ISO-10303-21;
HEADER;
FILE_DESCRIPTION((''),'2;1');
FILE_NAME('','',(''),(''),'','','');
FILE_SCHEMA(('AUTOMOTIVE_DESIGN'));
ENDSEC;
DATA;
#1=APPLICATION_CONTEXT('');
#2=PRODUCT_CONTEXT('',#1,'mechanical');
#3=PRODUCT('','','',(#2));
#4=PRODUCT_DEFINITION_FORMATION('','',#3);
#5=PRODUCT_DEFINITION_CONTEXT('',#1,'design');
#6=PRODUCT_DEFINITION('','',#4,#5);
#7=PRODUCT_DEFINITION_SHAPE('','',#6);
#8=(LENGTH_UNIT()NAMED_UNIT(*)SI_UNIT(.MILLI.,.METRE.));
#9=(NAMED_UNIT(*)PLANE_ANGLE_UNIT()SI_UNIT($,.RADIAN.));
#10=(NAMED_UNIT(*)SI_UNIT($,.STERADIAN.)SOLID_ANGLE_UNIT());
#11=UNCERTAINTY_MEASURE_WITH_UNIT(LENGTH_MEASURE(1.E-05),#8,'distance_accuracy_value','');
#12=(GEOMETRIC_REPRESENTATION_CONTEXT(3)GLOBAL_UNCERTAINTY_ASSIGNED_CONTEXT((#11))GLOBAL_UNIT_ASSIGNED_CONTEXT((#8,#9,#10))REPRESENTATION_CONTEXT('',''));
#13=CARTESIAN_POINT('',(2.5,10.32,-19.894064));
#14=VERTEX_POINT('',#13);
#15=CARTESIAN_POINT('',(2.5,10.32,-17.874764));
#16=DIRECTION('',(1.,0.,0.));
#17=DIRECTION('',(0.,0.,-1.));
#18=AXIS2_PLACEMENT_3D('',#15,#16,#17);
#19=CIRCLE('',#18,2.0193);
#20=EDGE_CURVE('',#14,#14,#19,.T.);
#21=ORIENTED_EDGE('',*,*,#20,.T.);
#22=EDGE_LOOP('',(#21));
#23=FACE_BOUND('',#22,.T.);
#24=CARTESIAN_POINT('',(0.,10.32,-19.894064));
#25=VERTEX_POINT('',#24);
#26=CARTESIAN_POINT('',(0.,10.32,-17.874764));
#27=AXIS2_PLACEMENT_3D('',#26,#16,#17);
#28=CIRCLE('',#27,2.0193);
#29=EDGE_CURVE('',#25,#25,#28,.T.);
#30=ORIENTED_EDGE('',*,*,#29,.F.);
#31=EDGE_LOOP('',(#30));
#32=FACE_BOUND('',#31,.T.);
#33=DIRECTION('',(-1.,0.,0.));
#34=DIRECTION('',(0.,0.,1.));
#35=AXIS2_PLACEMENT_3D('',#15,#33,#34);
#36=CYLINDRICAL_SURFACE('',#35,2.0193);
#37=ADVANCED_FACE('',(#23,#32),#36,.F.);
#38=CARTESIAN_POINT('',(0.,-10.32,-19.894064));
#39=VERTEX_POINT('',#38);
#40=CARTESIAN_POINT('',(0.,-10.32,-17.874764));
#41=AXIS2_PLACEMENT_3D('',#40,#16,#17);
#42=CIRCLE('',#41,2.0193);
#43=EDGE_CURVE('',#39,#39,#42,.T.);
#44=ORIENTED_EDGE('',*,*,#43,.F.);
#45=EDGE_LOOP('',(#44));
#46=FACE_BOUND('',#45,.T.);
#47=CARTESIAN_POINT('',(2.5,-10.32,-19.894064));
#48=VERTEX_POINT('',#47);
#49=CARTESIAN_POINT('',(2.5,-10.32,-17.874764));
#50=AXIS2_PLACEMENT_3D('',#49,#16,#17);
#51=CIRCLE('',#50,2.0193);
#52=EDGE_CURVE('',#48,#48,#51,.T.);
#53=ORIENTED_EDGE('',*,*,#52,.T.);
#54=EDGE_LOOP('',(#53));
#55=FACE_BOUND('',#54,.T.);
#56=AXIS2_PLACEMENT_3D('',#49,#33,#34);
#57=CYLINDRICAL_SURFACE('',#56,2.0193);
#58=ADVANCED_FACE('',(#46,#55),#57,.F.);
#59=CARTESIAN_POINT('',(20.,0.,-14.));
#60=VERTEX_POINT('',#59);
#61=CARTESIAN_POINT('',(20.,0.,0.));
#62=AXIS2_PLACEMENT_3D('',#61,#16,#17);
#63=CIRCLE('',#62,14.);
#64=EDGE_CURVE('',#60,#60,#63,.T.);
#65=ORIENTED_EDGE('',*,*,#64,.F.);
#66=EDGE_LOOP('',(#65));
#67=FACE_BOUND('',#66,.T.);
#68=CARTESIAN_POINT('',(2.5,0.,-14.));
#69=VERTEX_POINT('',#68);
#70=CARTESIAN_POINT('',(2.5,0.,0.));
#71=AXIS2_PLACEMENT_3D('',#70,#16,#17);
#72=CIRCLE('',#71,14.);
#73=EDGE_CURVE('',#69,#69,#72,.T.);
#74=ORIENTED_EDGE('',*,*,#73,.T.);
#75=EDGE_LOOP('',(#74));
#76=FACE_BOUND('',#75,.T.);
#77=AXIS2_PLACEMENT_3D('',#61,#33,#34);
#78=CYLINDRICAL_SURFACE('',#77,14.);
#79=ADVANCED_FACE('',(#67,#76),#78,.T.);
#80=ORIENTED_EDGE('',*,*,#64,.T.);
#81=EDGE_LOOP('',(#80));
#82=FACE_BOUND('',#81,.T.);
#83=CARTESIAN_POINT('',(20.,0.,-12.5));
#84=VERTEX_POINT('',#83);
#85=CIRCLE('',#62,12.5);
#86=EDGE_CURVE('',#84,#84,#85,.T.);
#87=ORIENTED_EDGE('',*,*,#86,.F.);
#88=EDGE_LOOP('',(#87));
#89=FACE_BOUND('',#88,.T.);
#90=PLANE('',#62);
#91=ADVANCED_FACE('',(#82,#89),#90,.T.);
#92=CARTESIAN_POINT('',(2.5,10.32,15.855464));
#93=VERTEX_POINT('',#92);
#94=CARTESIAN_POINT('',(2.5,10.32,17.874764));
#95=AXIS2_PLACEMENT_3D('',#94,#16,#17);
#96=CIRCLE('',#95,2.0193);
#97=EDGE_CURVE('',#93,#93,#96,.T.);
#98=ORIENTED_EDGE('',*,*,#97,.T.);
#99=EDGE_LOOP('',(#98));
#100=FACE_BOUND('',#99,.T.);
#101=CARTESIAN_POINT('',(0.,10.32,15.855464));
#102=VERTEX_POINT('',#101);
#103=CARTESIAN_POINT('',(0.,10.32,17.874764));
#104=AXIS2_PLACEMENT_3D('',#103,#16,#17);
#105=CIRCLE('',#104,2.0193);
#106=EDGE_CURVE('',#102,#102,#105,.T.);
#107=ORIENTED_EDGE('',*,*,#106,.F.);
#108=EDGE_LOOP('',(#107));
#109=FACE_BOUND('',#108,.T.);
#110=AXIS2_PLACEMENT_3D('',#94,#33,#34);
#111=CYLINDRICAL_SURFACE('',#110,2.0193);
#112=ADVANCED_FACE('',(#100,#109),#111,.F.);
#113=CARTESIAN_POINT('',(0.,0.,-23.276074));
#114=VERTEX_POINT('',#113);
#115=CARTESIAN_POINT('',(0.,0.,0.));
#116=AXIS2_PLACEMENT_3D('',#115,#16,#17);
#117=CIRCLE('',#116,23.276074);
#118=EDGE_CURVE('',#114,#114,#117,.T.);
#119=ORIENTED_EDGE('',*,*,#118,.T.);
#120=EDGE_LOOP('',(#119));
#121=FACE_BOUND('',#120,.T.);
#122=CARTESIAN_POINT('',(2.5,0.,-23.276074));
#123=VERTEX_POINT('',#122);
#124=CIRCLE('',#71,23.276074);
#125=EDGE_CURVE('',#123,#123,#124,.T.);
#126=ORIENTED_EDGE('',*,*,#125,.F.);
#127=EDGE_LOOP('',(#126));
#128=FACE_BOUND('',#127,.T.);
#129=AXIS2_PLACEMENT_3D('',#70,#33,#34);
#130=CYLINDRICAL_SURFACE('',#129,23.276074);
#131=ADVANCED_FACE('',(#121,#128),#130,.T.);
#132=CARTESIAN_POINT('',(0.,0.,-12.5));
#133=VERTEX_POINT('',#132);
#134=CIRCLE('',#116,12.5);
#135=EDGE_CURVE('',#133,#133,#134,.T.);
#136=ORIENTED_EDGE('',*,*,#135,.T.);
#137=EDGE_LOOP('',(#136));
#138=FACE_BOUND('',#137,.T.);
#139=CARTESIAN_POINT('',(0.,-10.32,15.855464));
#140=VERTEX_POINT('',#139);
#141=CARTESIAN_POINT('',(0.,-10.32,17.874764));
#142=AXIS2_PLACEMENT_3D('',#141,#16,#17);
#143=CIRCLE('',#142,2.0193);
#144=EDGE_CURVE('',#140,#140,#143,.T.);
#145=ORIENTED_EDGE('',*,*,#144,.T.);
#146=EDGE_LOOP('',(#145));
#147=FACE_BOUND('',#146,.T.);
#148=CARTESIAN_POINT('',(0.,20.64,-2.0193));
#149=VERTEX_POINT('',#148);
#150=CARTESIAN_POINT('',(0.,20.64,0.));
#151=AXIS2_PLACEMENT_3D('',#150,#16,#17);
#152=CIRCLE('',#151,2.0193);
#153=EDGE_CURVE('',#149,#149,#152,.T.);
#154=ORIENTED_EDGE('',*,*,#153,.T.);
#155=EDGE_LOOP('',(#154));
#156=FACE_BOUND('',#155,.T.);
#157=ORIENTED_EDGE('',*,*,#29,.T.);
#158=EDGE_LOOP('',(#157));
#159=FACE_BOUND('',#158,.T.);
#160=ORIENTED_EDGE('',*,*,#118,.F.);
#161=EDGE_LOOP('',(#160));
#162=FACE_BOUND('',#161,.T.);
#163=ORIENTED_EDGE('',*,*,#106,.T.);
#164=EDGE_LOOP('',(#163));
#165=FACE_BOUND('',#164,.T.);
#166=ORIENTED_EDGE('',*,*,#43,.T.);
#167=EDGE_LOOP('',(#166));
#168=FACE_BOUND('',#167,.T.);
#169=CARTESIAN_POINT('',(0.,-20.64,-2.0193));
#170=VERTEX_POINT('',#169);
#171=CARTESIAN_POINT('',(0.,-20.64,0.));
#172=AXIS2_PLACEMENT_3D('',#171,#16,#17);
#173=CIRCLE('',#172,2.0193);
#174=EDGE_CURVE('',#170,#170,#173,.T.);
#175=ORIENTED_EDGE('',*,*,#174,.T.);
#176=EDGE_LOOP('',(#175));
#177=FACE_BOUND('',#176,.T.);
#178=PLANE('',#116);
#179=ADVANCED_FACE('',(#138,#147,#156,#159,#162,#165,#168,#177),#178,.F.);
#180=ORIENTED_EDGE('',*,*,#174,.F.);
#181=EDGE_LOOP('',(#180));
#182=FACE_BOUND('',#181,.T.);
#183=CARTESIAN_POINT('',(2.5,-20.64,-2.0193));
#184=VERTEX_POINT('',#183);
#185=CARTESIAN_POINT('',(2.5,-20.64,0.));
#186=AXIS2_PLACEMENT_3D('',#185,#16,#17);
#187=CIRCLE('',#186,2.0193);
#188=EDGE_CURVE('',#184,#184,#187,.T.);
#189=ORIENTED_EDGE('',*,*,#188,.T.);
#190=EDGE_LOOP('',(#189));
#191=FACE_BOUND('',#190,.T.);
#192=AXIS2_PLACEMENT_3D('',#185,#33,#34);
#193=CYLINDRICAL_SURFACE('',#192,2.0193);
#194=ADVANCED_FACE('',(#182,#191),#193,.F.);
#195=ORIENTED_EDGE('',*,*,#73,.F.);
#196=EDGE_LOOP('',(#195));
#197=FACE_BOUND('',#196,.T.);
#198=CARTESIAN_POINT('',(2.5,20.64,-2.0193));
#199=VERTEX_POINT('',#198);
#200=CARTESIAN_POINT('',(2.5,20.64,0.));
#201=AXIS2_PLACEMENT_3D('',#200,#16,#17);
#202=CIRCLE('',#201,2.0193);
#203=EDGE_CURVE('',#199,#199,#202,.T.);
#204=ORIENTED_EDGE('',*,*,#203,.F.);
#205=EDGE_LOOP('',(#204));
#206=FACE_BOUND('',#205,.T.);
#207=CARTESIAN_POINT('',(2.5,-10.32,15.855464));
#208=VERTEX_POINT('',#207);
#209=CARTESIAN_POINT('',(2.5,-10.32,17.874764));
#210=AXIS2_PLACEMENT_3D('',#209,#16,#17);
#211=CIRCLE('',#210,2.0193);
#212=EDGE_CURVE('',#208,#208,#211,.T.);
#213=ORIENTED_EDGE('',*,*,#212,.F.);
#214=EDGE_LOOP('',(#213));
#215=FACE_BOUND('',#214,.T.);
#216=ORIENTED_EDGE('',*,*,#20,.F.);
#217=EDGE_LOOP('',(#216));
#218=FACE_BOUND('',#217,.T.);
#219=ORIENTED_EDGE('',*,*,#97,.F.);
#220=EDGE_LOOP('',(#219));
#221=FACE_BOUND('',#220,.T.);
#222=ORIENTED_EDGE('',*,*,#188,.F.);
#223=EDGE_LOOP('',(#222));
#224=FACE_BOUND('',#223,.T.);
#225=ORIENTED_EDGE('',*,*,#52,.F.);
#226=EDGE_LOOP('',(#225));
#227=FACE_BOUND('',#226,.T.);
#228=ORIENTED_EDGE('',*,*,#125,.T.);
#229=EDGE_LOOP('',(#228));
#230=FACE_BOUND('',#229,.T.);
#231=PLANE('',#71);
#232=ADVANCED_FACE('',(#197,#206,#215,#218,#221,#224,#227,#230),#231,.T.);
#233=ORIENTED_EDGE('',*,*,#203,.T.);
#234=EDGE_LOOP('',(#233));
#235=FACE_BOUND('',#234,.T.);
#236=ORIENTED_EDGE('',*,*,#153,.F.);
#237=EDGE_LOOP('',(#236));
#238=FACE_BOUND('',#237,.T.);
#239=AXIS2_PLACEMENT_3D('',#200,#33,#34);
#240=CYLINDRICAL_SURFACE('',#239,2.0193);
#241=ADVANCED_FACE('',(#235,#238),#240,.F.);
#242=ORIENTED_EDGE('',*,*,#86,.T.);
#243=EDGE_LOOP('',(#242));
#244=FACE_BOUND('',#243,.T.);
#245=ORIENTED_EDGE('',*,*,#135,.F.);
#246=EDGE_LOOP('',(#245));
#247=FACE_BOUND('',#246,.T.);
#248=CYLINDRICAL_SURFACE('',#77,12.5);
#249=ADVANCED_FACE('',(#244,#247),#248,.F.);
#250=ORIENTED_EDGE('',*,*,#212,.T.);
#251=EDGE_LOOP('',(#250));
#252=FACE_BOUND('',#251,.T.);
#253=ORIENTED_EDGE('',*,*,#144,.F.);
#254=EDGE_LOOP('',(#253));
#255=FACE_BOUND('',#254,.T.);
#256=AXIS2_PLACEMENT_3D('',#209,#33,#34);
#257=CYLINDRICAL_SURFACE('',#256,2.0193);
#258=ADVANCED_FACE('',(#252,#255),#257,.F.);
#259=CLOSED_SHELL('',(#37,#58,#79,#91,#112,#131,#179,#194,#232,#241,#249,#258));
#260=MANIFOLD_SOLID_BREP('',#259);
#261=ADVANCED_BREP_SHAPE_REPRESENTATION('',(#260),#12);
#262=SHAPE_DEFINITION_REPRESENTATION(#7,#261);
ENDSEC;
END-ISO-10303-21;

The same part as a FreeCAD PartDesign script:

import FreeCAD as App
import Part
import Sketcher

V = App.Vector

doc = App.newDocument("Part")
body = doc.addObject("PartDesign::Body", "Body")

# Sketch on YZ plane
sketch1 = body.newObject("Sketcher::SketchObject", "Sketch")
sketch1.AttachmentSupport = (doc.getObject("YZ_Plane"), [""])
sketch1.MapMode = "FlatFace"
sketch1.addGeometry([
    Part.Circle(V(0, 0, 0), V(0, 0, 1), 23.3),  # 0
    Part.Circle(V(-20.6, 0, 0), V(0, 0, 1), 2),  # 1
    Part.Circle(V(-10.3, 17.9, 0), V(0, 0, 1), 2),  # 2
    Part.Circle(V(-10.3, -17.9, 0), V(0, 0, 1), 2),  # 3
    Part.Circle(V(10.3, 17.9, 0), V(0, 0, 1), 2),  # 4
    Part.Circle(V(20.6, 0, 0), V(0, 0, 1), 2),  # 5
    Part.Circle(V(10.3, -17.9, 0), V(0, 0, 1), 2),  # 6
], False)
sketch1.addConstraint([
    Sketcher.Constraint("Coincident", 0, 3, -1, 1),
    Sketcher.Constraint("Equal", 1, 2),
    Sketcher.Constraint("Equal", 2, 3),
    Sketcher.Constraint("Equal", 3, 4),
    Sketcher.Constraint("Equal", 4, 5),
    Sketcher.Constraint("Equal", 5, 6),
    Sketcher.Constraint("Symmetric", 3, 3, 4, 3, -1, 1),
    Sketcher.Constraint("Symmetric", 1, 3, 5, 3, -1, 1),
    Sketcher.Constraint("Symmetric", 2, 3, 6, 3, -1, 1),
    Sketcher.Constraint("Symmetric", 2, 3, 4, 3, -2),
    Sketcher.Constraint("PointOnObject", 1, 3, -1),
    Sketcher.Constraint("Diameter", 1, 4.0386),
    Sketcher.Constraint("Diameter", 0, 46.552149),
    Sketcher.Constraint("DistanceX", 1, 3, -1, 1, 20.64),
    Sketcher.Constraint("DistanceX", 2, 3, -1, 1, 10.32),
    Sketcher.Constraint("DistanceY", 3, 3, 2, 3, 35.749529),
])
pad1 = body.newObject("PartDesign::Pad", "Pad")
pad1.Profile = sketch1
pad1.Length = 2.5

# Sketch on YZ plane
sketch2 = body.newObject("Sketcher::SketchObject", "Sketch001")
sketch2.AttachmentSupport = (doc.getObject("YZ_Plane"), [""])
sketch2.MapMode = "FlatFace"
sketch2.addGeometry(Part.Circle(V(0, 0, 0), V(0, 0, 1), 14), False)
sketch2.addConstraint([
    Sketcher.Constraint("Coincident", 0, 3, -1, 1),
    Sketcher.Constraint("Diameter", 0, 28.0),
])
pocket1 = body.newObject("PartDesign::Pocket", "Pocket")
pocket1.Profile = sketch2
pocket1.Length = 30.8125
pocket1.Reversed = True

# Sketch on YZ plane
sketch3 = body.newObject("Sketcher::SketchObject", "Sketch002")
sketch3.AttachmentSupport = (doc.getObject("YZ_Plane"), [""])
sketch3.MapMode = "FlatFace"
sketch3.addGeometry([
    Part.Circle(V(0, 0, 0), V(0, 0, 1), 14),
    Part.Circle(V(0, 0, 0), V(0, 0, 1), 12),
], False)
sketch3.addConstraint([
    Sketcher.Constraint("Coincident", 0, 3, -1, 1),
    Sketcher.Constraint("Coincident", 1, 3, -1, 1),
    Sketcher.Constraint("Diameter", 0, 28.0),
    Sketcher.Constraint("Diameter", 1, 25.0),
])
pad2 = body.newObject("PartDesign::Pad", "Pad001")
pad2.Profile = sketch3
pad2.Length = 20

doc.recompute()
